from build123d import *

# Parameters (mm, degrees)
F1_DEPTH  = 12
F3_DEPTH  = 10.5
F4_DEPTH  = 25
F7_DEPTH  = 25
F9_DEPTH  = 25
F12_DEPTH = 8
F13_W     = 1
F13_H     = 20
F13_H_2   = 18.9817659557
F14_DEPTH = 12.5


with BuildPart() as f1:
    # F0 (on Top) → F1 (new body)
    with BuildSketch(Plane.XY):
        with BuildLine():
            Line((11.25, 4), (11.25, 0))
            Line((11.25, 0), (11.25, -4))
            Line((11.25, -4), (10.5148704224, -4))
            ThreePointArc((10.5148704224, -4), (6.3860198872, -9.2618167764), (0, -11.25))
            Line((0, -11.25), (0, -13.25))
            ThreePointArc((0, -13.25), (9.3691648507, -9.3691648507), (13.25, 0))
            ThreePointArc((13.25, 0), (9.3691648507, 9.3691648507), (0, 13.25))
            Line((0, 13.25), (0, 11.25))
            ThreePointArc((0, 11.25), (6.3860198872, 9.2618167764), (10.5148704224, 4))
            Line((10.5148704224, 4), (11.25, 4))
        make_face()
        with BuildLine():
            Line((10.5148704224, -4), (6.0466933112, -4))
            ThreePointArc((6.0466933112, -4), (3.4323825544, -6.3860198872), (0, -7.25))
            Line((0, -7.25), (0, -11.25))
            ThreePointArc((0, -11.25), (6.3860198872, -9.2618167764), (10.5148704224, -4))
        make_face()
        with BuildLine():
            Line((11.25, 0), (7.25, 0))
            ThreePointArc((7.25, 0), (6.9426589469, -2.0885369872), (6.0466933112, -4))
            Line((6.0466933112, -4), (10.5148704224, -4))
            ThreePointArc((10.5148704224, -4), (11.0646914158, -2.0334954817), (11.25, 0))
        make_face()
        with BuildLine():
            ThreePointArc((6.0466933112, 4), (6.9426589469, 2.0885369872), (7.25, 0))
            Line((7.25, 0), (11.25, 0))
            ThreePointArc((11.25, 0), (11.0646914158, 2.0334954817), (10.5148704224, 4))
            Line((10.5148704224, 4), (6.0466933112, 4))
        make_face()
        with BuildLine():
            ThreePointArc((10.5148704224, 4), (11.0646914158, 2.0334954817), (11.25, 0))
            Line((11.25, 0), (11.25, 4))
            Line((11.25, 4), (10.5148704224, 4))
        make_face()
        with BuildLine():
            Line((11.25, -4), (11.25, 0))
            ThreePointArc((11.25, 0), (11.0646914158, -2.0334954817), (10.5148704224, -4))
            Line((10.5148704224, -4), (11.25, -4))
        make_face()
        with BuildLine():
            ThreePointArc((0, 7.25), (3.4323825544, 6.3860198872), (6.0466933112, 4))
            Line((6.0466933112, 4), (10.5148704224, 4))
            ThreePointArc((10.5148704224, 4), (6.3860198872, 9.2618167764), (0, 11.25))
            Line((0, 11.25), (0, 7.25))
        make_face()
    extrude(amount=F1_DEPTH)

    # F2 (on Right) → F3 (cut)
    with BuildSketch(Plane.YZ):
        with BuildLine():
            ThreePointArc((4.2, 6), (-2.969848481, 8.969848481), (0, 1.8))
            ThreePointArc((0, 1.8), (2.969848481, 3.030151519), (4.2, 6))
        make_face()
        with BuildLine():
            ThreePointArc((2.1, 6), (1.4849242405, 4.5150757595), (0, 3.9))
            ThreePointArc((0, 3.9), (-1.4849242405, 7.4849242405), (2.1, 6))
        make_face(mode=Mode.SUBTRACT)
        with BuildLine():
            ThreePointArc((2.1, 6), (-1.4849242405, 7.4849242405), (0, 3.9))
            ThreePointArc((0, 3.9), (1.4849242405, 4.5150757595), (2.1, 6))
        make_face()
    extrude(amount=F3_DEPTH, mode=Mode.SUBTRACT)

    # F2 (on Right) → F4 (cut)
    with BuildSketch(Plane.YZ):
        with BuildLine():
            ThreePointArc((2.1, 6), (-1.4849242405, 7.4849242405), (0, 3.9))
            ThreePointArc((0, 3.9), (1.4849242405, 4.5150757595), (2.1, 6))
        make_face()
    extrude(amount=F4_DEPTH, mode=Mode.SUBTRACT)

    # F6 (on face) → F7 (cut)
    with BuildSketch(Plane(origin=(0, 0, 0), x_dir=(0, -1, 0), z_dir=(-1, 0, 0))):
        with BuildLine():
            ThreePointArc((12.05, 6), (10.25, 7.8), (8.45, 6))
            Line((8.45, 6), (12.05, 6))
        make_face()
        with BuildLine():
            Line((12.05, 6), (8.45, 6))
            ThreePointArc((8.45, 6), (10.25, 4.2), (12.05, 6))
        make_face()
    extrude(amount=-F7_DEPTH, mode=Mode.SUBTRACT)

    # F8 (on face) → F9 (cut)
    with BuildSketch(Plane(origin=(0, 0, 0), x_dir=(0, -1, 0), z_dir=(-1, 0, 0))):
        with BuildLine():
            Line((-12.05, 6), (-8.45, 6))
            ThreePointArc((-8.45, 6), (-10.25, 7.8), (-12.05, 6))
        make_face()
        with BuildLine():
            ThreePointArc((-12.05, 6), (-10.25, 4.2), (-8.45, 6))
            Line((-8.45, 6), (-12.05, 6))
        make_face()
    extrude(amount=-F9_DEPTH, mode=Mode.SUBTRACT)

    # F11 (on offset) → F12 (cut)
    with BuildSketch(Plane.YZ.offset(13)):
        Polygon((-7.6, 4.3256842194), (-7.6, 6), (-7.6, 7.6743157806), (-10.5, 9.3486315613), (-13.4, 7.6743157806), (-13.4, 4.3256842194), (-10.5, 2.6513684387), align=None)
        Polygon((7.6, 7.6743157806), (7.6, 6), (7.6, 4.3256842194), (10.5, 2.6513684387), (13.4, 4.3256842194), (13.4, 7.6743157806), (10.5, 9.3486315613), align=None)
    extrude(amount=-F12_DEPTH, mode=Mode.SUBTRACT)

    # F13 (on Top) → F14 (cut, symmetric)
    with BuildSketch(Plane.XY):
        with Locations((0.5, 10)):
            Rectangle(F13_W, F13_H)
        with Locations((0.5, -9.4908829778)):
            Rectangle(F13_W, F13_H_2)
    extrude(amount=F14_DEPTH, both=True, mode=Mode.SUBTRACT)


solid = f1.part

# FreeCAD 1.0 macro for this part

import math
import FreeCAD as App
import Part
import Sketcher

V = App.Vector
Q = App.Units.Quantity

doc = App.newDocument("Part")
body = doc.addObject("PartDesign::Body", "Body")

# Sketch on XY plane
sketch1 = doc.addObject("Sketcher::SketchObject", "Sketch")
body.addObject(sketch1)
sketch1.AttachmentSupport = (doc.XY_Plane, [""])
sketch1.MapMode = "FlatFace"
sketch1.addGeometry(Part.ArcOfCircle(Part.Circle(V(0, 0, 0), V(0, 0, 1), 7.25), math.radians(0), math.radians(33.485377)), False)
sketch1.addGeometry(Part.ArcOfCircle(Part.Circle(V(0, 0, 0), V(0, 0, 1), 7.25), math.radians(-33.485377), math.radians(0)), False)
sketch1.addGeometry(Part.ArcOfCircle(Part.Circle(V(0, 0, 0), V(0, 0, 1), 7.25), math.radians(-90), math.radians(-33.485377)), False)
sketch1.addGeometry(Part.LineSegment(V(0, -7.25, 0), V(0, -13.25, 0)), False)
sketch1.addGeometry(Part.ArcOfCircle(Part.Circle(V(0, 0, 0), V(0, 0, 1), 13.25), math.radians(-90), math.radians(0)), False)
sketch1.addGeometry(Part.ArcOfCircle(Part.Circle(V(0, 0, 0), V(0, 0, 1), 13.25), math.radians(0), math.radians(90)), False)
sketch1.addGeometry(Part.LineSegment(V(0, 13.25, 0), V(0, 7.25, 0)), False)
sketch1.addGeometry(Part.ArcOfCircle(Part.Circle(V(0, 0, 0), V(0, 0, 1), 7.25), math.radians(33.485377), math.radians(90)), False)
sketch1.addConstraint(Sketcher.Constraint("Tangent", 0, 1, 1, 2))
sketch1.addConstraint(Sketcher.Constraint("Tangent", 1, 1, 2, 2))
sketch1.addConstraint(Sketcher.Constraint("Coincident", 2, 1, 3, 1))
sketch1.addConstraint(Sketcher.Constraint("Coincident", 3, 2, 4, 1))
sketch1.addConstraint(Sketcher.Constraint("Tangent", 4, 2, 5, 1))
sketch1.addConstraint(Sketcher.Constraint("Coincident", 5, 2, 6, 1))
sketch1.addConstraint(Sketcher.Constraint("Coincident", 6, 2, 7, 2))
sketch1.addConstraint(Sketcher.Constraint("Tangent", 7, 1, 0, 2))
sketch1.addConstraint(Sketcher.Constraint("Vertical", 3))
sketch1.addConstraint(Sketcher.Constraint("Vertical", 6))
sketch1.addConstraint(Sketcher.Constraint("Coincident", 0, 3, -1, 1))
sketch1.addConstraint(Sketcher.Constraint("Coincident", 2, 3, -1, 1))
sketch1.addConstraint(Sketcher.Constraint("Coincident", 4, 3, -1, 1))
sketch1.addConstraint(Sketcher.Constraint("Equal", 4, 5))
sketch1.addConstraint(Sketcher.Constraint("Equal", 2, 7))
sketch1.addConstraint(Sketcher.Constraint("PointOnObject", 0, 1, -1))
sketch1.addConstraint(Sketcher.Constraint("PointOnObject", 2, 1, -2))
sketch1.addConstraint(Sketcher.Constraint("PointOnObject", 4, 2, -1))
sketch1.addConstraint(Sketcher.Constraint("PointOnObject", 5, 2, -2))
sketch1.addConstraint(Sketcher.Constraint("Vertical", 1, 1, 7, 1))
sketch1.addConstraint(Sketcher.Constraint("DistanceY", 3, 2, 3, 1, Q("6 mm")))
sketch1.addConstraint(Sketcher.Constraint("Radius", 0, Q("7.25 mm")))
sketch1.addConstraint(Sketcher.Constraint("DistanceY", 1, 1, -1, 1, Q("4 mm")))
pad1 = doc.addObject("PartDesign::Pad", "Pad")
body.addObject(pad1)
pad1.Profile = sketch1
pad1.Length = 12

# Sketch on YZ plane
sketch2 = doc.addObject("Sketcher::SketchObject", "Sketch001")
body.addObject(sketch2)
sketch2.AttachmentSupport = (doc.YZ_Plane, [""])
sketch2.MapMode = "FlatFace"
sketch2.addGeometry(Part.ArcOfCircle(Part.Circle(V(0, 6, 0), V(0, 0, 1), 4.2), math.radians(0), math.radians(270)), False)
sketch2.addGeometry(Part.ArcOfCircle(Part.Circle(V(0, 6, 0), V(0, 0, 1), 4.2), math.radians(-90), math.radians(0)), False)
sketch2.addConstraint(Sketcher.Constraint("Tangent", 0, 1, 1, 2))
sketch2.addConstraint(Sketcher.Constraint("Coincident", 1, 1, 0, 2))
sketch2.addConstraint(Sketcher.Constraint("PointOnObject", 0, 3, -2))
sketch2.addConstraint(Sketcher.Constraint("PointOnObject", 1, 1, -2))
sketch2.addConstraint(Sketcher.Constraint("Horizontal", 1, 3, 0, 1))
sketch2.addConstraint(Sketcher.Constraint("Radius", 0, Q("4.2 mm")))
sketch2.addConstraint(Sketcher.Constraint("DistanceY", -1, 1, 0, 3, Q("6 mm")))
pocket1 = doc.addObject("PartDesign::Pocket", "Pocket")
body.addObject(pocket1)
pocket1.Profile = sketch2
pocket1.Length = 10.5
pocket1.Reversed = True

# Sketch on YZ plane
sketch3 = doc.addObject("Sketcher::SketchObject", "Sketch002")
body.addObject(sketch3)
sketch3.AttachmentSupport = (doc.YZ_Plane, [""])
sketch3.MapMode = "FlatFace"
sketch3.addGeometry(Part.ArcOfCircle(Part.Circle(V(0, 6, 0), V(0, 0, 1), 2.1), math.radians(0), math.radians(270)), False)
sketch3.addGeometry(Part.ArcOfCircle(Part.Circle(V(0, 6, 0), V(0, 0, 1), 2.1), math.radians(-90), math.radians(0)), False)
sketch3.addConstraint(Sketcher.Constraint("Tangent", 0, 1, 1, 2))
sketch3.addConstraint(Sketcher.Constraint("Coincident", 1, 1, 0, 2))
sketch3.addConstraint(Sketcher.Constraint("PointOnObject", 0, 3, -2))
sketch3.addConstraint(Sketcher.Constraint("PointOnObject", 1, 1, -2))
sketch3.addConstraint(Sketcher.Constraint("Horizontal", 1, 3, 0, 1))
sketch3.addConstraint(Sketcher.Constraint("Radius", 0, Q("2.1 mm")))
sketch3.addConstraint(Sketcher.Constraint("DistanceY", -1, 1, 0, 3, Q("6 mm")))
pocket2 = doc.addObject("PartDesign::Pocket", "Pocket001")
body.addObject(pocket2)
pocket2.Profile = sketch3
pocket2.Length = 25
pocket2.Reversed = True

# Sketch on YZ plane
sketch4 = doc.addObject("Sketcher::SketchObject", "Sketch003")
body.addObject(sketch4)
sketch4.AttachmentSupport = (doc.YZ_Plane, [""])
sketch4.MapMode = "FlatFace"
sketch4.addGeometry(Part.Circle(V(-10.25, 6, 0), V(0, 0, 1), 1.8), False)
sketch4.addConstraint(Sketcher.Constraint("Diameter", 0, Q("3.6 mm")))
sketch4.addConstraint(Sketcher.Constraint("DistanceY", -1, 1, 0, 3, Q("6 mm")))
sketch4.addConstraint(Sketcher.Constraint("DistanceX", 0, 3, -1, 1, Q("10.25 mm")))
pocket3 = doc.addObject("PartDesign::Pocket", "Pocket002")
body.addObject(pocket3)
pocket3.Profile = sketch4
pocket3.Length = 25
pocket3.Reversed = True

# Sketch on YZ plane
sketch5 = doc.addObject("Sketcher::SketchObject", "Sketch004")
body.addObject(sketch5)
sketch5.AttachmentSupport = (doc.YZ_Plane, [""])
sketch5.MapMode = "FlatFace"
sketch5.addGeometry(Part.Circle(V(10.25, 6, 0), V(0, 0, 1), 1.8), False)
sketch5.addConstraint(Sketcher.Constraint("Diameter", 0, Q("3.6 mm")))
sketch5.addConstraint(Sketcher.Constraint("DistanceY", -1, 1, 0, 3, Q("6 mm")))
sketch5.addConstraint(Sketcher.Constraint("DistanceX", -1, 1, 0, 3, Q("10.25 mm")))
pocket4 = doc.addObject("PartDesign::Pocket", "Pocket003")
body.addObject(pocket4)
pocket4.Profile = sketch5
pocket4.Length = 25
pocket4.Reversed = True

# Sketch on YZ plane
sketch6 = doc.addObject("Sketcher::SketchObject", "Sketch005")
body.addObject(sketch6)
sketch6.AttachmentSupport = (doc.YZ_Plane, [""])
sketch6.MapMode = "FlatFace"
sketch6.AttachmentOffset = App.Placement(V(0, 0, 13), App.Rotation())
sketch6.addGeometry(Part.LineSegment(V(-7.6, 4.325684, 0), V(-7.6, 7.674316, 0)), False)
sketch6.addGeometry(Part.LineSegment(V(-7.6, 7.674316, 0), V(-10.5, 9.348632, 0)), False)
sketch6.addGeometry(Part.LineSegment(V(-10.5, 9.348632, 0), V(-13.4, 7.674316, 0)), False)
sketch6.addGeometry(Part.LineSegment(V(-13.4, 7.674316, 0), V(-13.4, 4.325684, 0)), False)
sketch6.addGeometry(Part.LineSegment(V(-13.4, 4.325684, 0), V(-10.5, 2.651368, 0)), False)
sketch6.addGeometry(Part.LineSegment(V(-10.5, 2.651368, 0), V(-7.6, 4.325684, 0)), False)
sketch6.addGeometry(Part.LineSegment(V(7.6, 7.674316, 0), V(7.6, 4.325684, 0)), False)
sketch6.addGeometry(Part.LineSegment(V(7.6, 4.325684, 0), V(10.5, 2.651368, 0)), False)
sketch6.addGeometry(Part.LineSegment(V(10.5, 2.651368, 0), V(13.4, 4.325684, 0)), False)
sketch6.addGeometry(Part.LineSegment(V(13.4, 4.325684, 0), V(13.4, 7.674316, 0)), False)
sketch6.addGeometry(Part.LineSegment(V(13.4, 7.674316, 0), V(10.5, 9.348632, 0)), False)
sketch6.addGeometry(Part.LineSegment(V(10.5, 9.348632, 0), V(7.6, 7.674316, 0)), False)
sketch6.addConstraint(Sketcher.Constraint("Coincident", 0, 2, 1, 1))
sketch6.addConstraint(Sketcher.Constraint("Coincident", 1, 2, 2, 1))
sketch6.addConstraint(Sketcher.Constraint("Coincident", 2, 2, 3, 1))
sketch6.addConstraint(Sketcher.Constraint("Coincident", 3, 2, 4, 1))
sketch6.addConstraint(Sketcher.Constraint("Coincident", 4, 2, 5, 1))
sketch6.addConstraint(Sketcher.Constraint("Coincident", 5, 2, 0, 1))
sketch6.addConstraint(Sketcher.Constraint("Coincident", 6, 2, 7, 1))
sketch6.addConstraint(Sketcher.Constraint("Coincident", 7, 2, 8, 1))
sketch6.addConstraint(Sketcher.Constraint("Coincident", 8, 2, 9, 1))
sketch6.addConstraint(Sketcher.Constraint("Coincident", 9, 2, 10, 1))
sketch6.addConstraint(Sketcher.Constraint("Coincident", 10, 2, 11, 1))
sketch6.addConstraint(Sketcher.Constraint("Coincident", 11, 2, 6, 1))
sketch6.addConstraint(Sketcher.Constraint("Vertical", 0))
sketch6.addConstraint(Sketcher.Constraint("Vertical", 3))
sketch6.addConstraint(Sketcher.Constraint("Vertical", 6))
sketch6.addConstraint(Sketcher.Constraint("Vertical", 9))
sketch6.addConstraint(Sketcher.Constraint("Symmetric", 5, 2, 6, 2, -2))
sketch6.addConstraint(Sketcher.Constraint("Symmetric", 4, 2, 7, 2, -2))
sketch6.addConstraint(Sketcher.Constraint("Symmetric", 3, 2, 8, 2, -2))
sketch6.addConstraint(Sketcher.Constraint("Symmetric", 1, 2, 10, 2, -2))
sketch6.addConstraint(Sketcher.Constraint("Parallel", 1, 4))
sketch6.addConstraint(Sketcher.Constraint("Parallel", 2, 5))
sketch6.addConstraint(Sketcher.Constraint("Parallel", 4, 7))
sketch6.addConstraint(Sketcher.Constraint("Parallel", 7, 10))
sketch6.addConstraint(Sketcher.Constraint("Parallel", 8, 11))
sketch6.addConstraint(Sketcher.Constraint("Horizontal", 0, 2, 2, 2))
sketch6.addConstraint(Sketcher.Constraint("Horizontal", 3, 2, 5, 2))
sketch6.addConstraint(Sketcher.Constraint("Angle", 1, Q("150 deg")))
sketch6.addConstraint(Sketcher.Constraint("DistanceX", 3, 2, 6, 2, Q("21 mm")))
sketch6.addConstraint(Sketcher.Constraint("DistanceX", 0, 2, -1, 1, Q("7.6 mm")))
sketch6.addConstraint(Sketcher.Constraint("DistanceY", 0, 1, 0, 2, Q("3.348632 mm")))
sketch6.addConstraint(Sketcher.Constraint("DistanceY", -1, 1, 1, 2, Q("9.348632 mm")))
pocket5 = doc.addObject("PartDesign::Pocket", "Pocket004")
body.addObject(pocket5)
pocket5.Profile = sketch6
pocket5.Length = 8

# Sketch on XY plane
sketch7 = doc.addObject("Sketcher::SketchObject", "Sketch006")
body.addObject(sketch7)
sketch7.AttachmentSupport = (doc.XY_Plane, [""])
sketch7.MapMode = "FlatFace"
sketch7.addGeometry(Part.LineSegment(V(0, 20, 0), V(0, -18.981766, 0)), False)
sketch7.addGeometry(Part.LineSegment(V(0, -18.981766, 0), V(1, -18.981766, 0)), False)
sketch7.addGeometry(Part.LineSegment(V(1, -18.981766, 0), V(1, 20, 0)), False)
sketch7.addGeometry(Part.LineSegment(V(1, 20, 0), V(0, 20, 0)), False)
sketch7.addConstraint(Sketcher.Constraint("Coincident", 0, 2, 1, 1))
sketch7.addConstraint(Sketcher.Constraint("Coincident", 1, 2, 2, 1))
sketch7.addConstraint(Sketcher.Constraint("Coincident", 2, 2, 3, 1))
sketch7.addConstraint(Sketcher.Constraint("Coincident", 3, 2, 0, 1))
sketch7.addConstraint(Sketcher.Constraint("Vertical", 0))
sketch7.addConstraint(Sketcher.Constraint("Horizontal", 1))
sketch7.addConstraint(Sketcher.Constraint("Vertical", 2))
sketch7.addConstraint(Sketcher.Constraint("Horizontal", 3))
sketch7.addConstraint(Sketcher.Constraint("PointOnObject", 0, 2, -2))
sketch7.addConstraint(Sketcher.Constraint("DistanceX", 1, 1, 1, 2, Q("1 mm")))
sketch7.addConstraint(Sketcher.Constraint("DistanceY", -1, 1, 2, 2, Q("20 mm")))
sketch7.addConstraint(Sketcher.Constraint("DistanceY", 0, 2, 0, 1, Q("38.981766 mm")))
pocket6 = doc.addObject("PartDesign::Pocket", "Pocket005")
body.addObject(pocket6)
pocket6.Profile = sketch7
pocket6.Length = 25
pocket6.Midplane = True

doc.recompute()
